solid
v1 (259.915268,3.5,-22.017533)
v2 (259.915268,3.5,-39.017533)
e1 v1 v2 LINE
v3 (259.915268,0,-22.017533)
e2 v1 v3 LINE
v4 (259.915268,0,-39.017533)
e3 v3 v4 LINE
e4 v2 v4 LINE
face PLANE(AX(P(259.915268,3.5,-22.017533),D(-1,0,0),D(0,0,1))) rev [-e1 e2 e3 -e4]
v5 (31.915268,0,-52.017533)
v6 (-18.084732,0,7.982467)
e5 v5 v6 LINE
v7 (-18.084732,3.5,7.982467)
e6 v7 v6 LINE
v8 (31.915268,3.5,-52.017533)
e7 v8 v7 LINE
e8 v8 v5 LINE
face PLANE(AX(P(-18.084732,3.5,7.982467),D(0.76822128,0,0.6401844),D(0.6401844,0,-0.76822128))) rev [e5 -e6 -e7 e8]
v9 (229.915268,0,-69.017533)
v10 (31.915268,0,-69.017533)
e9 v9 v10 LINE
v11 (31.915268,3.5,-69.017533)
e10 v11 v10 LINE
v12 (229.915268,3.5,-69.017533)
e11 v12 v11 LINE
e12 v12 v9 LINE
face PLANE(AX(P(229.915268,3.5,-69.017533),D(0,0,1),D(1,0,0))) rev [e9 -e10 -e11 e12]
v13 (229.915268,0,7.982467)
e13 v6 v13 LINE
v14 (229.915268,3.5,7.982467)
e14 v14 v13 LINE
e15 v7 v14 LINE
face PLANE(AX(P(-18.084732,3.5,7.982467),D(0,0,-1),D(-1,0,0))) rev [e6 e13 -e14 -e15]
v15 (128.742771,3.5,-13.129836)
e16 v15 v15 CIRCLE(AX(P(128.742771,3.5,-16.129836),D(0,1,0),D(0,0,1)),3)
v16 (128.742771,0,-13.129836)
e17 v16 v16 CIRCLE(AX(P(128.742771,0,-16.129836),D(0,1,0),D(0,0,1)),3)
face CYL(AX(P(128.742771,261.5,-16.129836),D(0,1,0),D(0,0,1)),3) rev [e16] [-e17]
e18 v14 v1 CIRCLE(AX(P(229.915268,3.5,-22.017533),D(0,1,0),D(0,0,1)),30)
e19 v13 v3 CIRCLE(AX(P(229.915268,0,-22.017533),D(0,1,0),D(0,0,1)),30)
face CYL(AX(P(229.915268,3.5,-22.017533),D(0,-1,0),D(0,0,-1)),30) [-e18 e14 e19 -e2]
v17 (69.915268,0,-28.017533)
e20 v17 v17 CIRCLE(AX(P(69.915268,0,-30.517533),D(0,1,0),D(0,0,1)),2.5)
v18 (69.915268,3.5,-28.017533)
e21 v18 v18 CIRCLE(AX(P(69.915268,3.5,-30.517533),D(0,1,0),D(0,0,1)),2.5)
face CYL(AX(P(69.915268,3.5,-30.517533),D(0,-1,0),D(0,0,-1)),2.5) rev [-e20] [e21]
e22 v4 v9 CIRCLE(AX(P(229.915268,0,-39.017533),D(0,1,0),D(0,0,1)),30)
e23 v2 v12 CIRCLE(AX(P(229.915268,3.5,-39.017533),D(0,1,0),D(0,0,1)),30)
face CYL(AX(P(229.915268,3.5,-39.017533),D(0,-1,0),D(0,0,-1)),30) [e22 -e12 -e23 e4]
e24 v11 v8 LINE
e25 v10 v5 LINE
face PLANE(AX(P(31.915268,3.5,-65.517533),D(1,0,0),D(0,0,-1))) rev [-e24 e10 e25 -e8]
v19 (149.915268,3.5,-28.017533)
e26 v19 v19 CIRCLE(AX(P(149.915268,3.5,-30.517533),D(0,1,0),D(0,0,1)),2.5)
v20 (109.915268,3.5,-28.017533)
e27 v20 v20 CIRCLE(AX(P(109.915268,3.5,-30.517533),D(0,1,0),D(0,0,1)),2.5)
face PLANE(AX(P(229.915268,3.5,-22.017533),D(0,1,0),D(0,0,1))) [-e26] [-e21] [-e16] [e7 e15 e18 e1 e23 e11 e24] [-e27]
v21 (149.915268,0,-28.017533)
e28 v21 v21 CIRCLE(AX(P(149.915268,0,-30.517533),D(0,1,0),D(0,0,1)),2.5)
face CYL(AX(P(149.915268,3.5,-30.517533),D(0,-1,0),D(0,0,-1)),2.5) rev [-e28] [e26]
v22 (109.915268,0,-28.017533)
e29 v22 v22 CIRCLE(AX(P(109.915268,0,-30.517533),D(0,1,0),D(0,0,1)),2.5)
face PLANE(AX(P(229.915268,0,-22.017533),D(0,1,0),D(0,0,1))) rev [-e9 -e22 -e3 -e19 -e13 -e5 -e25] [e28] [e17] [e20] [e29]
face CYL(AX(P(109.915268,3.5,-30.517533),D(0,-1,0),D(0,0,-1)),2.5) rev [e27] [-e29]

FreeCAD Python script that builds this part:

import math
import FreeCAD as App
import Part
import Sketcher

doc = App.newDocument("Part")
body = doc.addObject("PartDesign::Body", "Body")

# Sketch on XZ plane
sketch1 = doc.addObject("Sketcher::SketchObject", "Sketch")
body.addObject(sketch1)
sketch1.AttachmentSupport = (doc.XZ_Plane, [""])
sketch1.MapMode = "FlatFace"
sketch1.addGeometry([
    Part.LineSegment(App.Vector(-18.1, 8, 0), App.Vector(229.9, 8, 0)),  # 0
    Part.ArcOfCircle(Part.Circle(App.Vector(229.9, -22, 0), App.Vector(0, 0, 1), 30), math.radians(0), math.radians(90)),  # 1
    Part.LineSegment(App.Vector(259.9, -22, 0), App.Vector(259.9, -39, 0)),  # 2
    Part.ArcOfCircle(Part.Circle(App.Vector(229.9, -39, 0), App.Vector(0, 0, 1), 30), math.radians(-90), math.radians(0)),  # 3
    Part.LineSegment(App.Vector(229.9, -69, 0), App.Vector(31.9, -69, 0)),  # 4
    Part.LineSegment(App.Vector(31.9, -69, 0), App.Vector(31.9, -52, 0)),  # 5
    Part.LineSegment(App.Vector(31.9, -52, 0), App.Vector(-18.1, 8, 0)),  # 6
    Part.Circle(App.Vector(69.9, -30.5, 0), App.Vector(0, 0, 1), 2.5),  # 7
    Part.Circle(App.Vector(109.9, -30.5, 0), App.Vector(0, 0, 1), 2.5),  # 8
    Part.Circle(App.Vector(149.9, -30.5, 0), App.Vector(0, 0, 1), 2.5),  # 9
], False)
sketch1.addConstraint([
    Sketcher.Constraint("Tangent", 0, 2, 1, 2),
    Sketcher.Constraint("Tangent", 1, 1, 2, 1),
    Sketcher.Constraint("Tangent", 2, 2, 3, 2),
    Sketcher.Constraint("Tangent", 3, 1, 4, 1),
    Sketcher.Constraint("Coincident", 4, 2, 5, 1),
    Sketcher.Constraint("Coincident", 5, 2, 6, 1),
    Sketcher.Constraint("Coincident", 6, 2, 0, 1),
    Sketcher.Constraint("Horizontal", 0),
    Sketcher.Constraint("Vertical", 2),
    Sketcher.Constraint("Horizontal", 4),
    Sketcher.Constraint("Vertical", 5),
    Sketcher.Constraint("Equal", 1, 3),
    Sketcher.Constraint("Equal", 7, 8),
    Sketcher.Constraint("Equal", 8, 9),
    Sketcher.Constraint("Horizontal", 7, 3, 8, 3),
    Sketcher.Constraint("Horizontal", 8, 3, 9, 3),
    Sketcher.Constraint("Equal", 2, 5),
    Sketcher.Constraint("Diameter", 7, 5.0),
    Sketcher.Constraint("Radius", 1, 30.0),
    Sketcher.Constraint("DistanceX", 0, 1, 0, 2, 248.0),
    Sketcher.Constraint("DistanceX", 4, 2, 4, 1, 198.0),
    Sketcher.Constraint("DistanceY", 2, 2, 2, 1, 17.0),
    Sketcher.Constraint("DistanceX", 7, 3, 1, 3, 160.0),
    Sketcher.Constraint("DistanceX", 7, 3, 8, 3, 40.0),
    Sketcher.Constraint("DistanceX", 8, 3, 9, 3, 40.0),
    Sketcher.Constraint("DistanceY", 7, 3, 1, 3, 8.5),
    Sketcher.Constraint("DistanceX", -1, 1, 1, 3, 229.915268),
    Sketcher.Constraint("DistanceY", 1, 3, -1, 1, 22.017533),
])
pad1 = doc.addObject("PartDesign::Pad", "Pad")
body.addObject(pad1)
pad1.Profile = sketch1
pad1.Length = 3.5
pad1.Reversed = True

# Sketch on XZ plane
sketch2 = doc.addObject("Sketcher::SketchObject", "Sketch001")
body.addObject(sketch2)
sketch2.AttachmentSupport = (doc.XZ_Plane, [""])
sketch2.MapMode = "FlatFace"
sketch2.AttachmentOffset = App.Placement(App.Vector(0, 0, -261.5), App.Rotation())
sketch2.addGeometry(Part.Circle(App.Vector(128.7, -16.1, 0), App.Vector(0, 0, 1), 3), False)
sketch2.addConstraint([
    Sketcher.Constraint("Diameter", 0, 6.0),
    Sketcher.Constraint("DistanceX", -1, 1, 0, 3, 128.742771),
    Sketcher.Constraint("DistanceY", 0, 3, -1, 1, 16.129836),
])
doc.recompute()
hole = doc.addObject("PartDesign::Hole", "Hole")
body.addObject(hole)
hole.Profile = sketch2
hole.ThreadType = "None"
hole.Diameter = 6
hole.DepthType = "ThroughAll"
hole.Reversed = True

doc.recompute()
